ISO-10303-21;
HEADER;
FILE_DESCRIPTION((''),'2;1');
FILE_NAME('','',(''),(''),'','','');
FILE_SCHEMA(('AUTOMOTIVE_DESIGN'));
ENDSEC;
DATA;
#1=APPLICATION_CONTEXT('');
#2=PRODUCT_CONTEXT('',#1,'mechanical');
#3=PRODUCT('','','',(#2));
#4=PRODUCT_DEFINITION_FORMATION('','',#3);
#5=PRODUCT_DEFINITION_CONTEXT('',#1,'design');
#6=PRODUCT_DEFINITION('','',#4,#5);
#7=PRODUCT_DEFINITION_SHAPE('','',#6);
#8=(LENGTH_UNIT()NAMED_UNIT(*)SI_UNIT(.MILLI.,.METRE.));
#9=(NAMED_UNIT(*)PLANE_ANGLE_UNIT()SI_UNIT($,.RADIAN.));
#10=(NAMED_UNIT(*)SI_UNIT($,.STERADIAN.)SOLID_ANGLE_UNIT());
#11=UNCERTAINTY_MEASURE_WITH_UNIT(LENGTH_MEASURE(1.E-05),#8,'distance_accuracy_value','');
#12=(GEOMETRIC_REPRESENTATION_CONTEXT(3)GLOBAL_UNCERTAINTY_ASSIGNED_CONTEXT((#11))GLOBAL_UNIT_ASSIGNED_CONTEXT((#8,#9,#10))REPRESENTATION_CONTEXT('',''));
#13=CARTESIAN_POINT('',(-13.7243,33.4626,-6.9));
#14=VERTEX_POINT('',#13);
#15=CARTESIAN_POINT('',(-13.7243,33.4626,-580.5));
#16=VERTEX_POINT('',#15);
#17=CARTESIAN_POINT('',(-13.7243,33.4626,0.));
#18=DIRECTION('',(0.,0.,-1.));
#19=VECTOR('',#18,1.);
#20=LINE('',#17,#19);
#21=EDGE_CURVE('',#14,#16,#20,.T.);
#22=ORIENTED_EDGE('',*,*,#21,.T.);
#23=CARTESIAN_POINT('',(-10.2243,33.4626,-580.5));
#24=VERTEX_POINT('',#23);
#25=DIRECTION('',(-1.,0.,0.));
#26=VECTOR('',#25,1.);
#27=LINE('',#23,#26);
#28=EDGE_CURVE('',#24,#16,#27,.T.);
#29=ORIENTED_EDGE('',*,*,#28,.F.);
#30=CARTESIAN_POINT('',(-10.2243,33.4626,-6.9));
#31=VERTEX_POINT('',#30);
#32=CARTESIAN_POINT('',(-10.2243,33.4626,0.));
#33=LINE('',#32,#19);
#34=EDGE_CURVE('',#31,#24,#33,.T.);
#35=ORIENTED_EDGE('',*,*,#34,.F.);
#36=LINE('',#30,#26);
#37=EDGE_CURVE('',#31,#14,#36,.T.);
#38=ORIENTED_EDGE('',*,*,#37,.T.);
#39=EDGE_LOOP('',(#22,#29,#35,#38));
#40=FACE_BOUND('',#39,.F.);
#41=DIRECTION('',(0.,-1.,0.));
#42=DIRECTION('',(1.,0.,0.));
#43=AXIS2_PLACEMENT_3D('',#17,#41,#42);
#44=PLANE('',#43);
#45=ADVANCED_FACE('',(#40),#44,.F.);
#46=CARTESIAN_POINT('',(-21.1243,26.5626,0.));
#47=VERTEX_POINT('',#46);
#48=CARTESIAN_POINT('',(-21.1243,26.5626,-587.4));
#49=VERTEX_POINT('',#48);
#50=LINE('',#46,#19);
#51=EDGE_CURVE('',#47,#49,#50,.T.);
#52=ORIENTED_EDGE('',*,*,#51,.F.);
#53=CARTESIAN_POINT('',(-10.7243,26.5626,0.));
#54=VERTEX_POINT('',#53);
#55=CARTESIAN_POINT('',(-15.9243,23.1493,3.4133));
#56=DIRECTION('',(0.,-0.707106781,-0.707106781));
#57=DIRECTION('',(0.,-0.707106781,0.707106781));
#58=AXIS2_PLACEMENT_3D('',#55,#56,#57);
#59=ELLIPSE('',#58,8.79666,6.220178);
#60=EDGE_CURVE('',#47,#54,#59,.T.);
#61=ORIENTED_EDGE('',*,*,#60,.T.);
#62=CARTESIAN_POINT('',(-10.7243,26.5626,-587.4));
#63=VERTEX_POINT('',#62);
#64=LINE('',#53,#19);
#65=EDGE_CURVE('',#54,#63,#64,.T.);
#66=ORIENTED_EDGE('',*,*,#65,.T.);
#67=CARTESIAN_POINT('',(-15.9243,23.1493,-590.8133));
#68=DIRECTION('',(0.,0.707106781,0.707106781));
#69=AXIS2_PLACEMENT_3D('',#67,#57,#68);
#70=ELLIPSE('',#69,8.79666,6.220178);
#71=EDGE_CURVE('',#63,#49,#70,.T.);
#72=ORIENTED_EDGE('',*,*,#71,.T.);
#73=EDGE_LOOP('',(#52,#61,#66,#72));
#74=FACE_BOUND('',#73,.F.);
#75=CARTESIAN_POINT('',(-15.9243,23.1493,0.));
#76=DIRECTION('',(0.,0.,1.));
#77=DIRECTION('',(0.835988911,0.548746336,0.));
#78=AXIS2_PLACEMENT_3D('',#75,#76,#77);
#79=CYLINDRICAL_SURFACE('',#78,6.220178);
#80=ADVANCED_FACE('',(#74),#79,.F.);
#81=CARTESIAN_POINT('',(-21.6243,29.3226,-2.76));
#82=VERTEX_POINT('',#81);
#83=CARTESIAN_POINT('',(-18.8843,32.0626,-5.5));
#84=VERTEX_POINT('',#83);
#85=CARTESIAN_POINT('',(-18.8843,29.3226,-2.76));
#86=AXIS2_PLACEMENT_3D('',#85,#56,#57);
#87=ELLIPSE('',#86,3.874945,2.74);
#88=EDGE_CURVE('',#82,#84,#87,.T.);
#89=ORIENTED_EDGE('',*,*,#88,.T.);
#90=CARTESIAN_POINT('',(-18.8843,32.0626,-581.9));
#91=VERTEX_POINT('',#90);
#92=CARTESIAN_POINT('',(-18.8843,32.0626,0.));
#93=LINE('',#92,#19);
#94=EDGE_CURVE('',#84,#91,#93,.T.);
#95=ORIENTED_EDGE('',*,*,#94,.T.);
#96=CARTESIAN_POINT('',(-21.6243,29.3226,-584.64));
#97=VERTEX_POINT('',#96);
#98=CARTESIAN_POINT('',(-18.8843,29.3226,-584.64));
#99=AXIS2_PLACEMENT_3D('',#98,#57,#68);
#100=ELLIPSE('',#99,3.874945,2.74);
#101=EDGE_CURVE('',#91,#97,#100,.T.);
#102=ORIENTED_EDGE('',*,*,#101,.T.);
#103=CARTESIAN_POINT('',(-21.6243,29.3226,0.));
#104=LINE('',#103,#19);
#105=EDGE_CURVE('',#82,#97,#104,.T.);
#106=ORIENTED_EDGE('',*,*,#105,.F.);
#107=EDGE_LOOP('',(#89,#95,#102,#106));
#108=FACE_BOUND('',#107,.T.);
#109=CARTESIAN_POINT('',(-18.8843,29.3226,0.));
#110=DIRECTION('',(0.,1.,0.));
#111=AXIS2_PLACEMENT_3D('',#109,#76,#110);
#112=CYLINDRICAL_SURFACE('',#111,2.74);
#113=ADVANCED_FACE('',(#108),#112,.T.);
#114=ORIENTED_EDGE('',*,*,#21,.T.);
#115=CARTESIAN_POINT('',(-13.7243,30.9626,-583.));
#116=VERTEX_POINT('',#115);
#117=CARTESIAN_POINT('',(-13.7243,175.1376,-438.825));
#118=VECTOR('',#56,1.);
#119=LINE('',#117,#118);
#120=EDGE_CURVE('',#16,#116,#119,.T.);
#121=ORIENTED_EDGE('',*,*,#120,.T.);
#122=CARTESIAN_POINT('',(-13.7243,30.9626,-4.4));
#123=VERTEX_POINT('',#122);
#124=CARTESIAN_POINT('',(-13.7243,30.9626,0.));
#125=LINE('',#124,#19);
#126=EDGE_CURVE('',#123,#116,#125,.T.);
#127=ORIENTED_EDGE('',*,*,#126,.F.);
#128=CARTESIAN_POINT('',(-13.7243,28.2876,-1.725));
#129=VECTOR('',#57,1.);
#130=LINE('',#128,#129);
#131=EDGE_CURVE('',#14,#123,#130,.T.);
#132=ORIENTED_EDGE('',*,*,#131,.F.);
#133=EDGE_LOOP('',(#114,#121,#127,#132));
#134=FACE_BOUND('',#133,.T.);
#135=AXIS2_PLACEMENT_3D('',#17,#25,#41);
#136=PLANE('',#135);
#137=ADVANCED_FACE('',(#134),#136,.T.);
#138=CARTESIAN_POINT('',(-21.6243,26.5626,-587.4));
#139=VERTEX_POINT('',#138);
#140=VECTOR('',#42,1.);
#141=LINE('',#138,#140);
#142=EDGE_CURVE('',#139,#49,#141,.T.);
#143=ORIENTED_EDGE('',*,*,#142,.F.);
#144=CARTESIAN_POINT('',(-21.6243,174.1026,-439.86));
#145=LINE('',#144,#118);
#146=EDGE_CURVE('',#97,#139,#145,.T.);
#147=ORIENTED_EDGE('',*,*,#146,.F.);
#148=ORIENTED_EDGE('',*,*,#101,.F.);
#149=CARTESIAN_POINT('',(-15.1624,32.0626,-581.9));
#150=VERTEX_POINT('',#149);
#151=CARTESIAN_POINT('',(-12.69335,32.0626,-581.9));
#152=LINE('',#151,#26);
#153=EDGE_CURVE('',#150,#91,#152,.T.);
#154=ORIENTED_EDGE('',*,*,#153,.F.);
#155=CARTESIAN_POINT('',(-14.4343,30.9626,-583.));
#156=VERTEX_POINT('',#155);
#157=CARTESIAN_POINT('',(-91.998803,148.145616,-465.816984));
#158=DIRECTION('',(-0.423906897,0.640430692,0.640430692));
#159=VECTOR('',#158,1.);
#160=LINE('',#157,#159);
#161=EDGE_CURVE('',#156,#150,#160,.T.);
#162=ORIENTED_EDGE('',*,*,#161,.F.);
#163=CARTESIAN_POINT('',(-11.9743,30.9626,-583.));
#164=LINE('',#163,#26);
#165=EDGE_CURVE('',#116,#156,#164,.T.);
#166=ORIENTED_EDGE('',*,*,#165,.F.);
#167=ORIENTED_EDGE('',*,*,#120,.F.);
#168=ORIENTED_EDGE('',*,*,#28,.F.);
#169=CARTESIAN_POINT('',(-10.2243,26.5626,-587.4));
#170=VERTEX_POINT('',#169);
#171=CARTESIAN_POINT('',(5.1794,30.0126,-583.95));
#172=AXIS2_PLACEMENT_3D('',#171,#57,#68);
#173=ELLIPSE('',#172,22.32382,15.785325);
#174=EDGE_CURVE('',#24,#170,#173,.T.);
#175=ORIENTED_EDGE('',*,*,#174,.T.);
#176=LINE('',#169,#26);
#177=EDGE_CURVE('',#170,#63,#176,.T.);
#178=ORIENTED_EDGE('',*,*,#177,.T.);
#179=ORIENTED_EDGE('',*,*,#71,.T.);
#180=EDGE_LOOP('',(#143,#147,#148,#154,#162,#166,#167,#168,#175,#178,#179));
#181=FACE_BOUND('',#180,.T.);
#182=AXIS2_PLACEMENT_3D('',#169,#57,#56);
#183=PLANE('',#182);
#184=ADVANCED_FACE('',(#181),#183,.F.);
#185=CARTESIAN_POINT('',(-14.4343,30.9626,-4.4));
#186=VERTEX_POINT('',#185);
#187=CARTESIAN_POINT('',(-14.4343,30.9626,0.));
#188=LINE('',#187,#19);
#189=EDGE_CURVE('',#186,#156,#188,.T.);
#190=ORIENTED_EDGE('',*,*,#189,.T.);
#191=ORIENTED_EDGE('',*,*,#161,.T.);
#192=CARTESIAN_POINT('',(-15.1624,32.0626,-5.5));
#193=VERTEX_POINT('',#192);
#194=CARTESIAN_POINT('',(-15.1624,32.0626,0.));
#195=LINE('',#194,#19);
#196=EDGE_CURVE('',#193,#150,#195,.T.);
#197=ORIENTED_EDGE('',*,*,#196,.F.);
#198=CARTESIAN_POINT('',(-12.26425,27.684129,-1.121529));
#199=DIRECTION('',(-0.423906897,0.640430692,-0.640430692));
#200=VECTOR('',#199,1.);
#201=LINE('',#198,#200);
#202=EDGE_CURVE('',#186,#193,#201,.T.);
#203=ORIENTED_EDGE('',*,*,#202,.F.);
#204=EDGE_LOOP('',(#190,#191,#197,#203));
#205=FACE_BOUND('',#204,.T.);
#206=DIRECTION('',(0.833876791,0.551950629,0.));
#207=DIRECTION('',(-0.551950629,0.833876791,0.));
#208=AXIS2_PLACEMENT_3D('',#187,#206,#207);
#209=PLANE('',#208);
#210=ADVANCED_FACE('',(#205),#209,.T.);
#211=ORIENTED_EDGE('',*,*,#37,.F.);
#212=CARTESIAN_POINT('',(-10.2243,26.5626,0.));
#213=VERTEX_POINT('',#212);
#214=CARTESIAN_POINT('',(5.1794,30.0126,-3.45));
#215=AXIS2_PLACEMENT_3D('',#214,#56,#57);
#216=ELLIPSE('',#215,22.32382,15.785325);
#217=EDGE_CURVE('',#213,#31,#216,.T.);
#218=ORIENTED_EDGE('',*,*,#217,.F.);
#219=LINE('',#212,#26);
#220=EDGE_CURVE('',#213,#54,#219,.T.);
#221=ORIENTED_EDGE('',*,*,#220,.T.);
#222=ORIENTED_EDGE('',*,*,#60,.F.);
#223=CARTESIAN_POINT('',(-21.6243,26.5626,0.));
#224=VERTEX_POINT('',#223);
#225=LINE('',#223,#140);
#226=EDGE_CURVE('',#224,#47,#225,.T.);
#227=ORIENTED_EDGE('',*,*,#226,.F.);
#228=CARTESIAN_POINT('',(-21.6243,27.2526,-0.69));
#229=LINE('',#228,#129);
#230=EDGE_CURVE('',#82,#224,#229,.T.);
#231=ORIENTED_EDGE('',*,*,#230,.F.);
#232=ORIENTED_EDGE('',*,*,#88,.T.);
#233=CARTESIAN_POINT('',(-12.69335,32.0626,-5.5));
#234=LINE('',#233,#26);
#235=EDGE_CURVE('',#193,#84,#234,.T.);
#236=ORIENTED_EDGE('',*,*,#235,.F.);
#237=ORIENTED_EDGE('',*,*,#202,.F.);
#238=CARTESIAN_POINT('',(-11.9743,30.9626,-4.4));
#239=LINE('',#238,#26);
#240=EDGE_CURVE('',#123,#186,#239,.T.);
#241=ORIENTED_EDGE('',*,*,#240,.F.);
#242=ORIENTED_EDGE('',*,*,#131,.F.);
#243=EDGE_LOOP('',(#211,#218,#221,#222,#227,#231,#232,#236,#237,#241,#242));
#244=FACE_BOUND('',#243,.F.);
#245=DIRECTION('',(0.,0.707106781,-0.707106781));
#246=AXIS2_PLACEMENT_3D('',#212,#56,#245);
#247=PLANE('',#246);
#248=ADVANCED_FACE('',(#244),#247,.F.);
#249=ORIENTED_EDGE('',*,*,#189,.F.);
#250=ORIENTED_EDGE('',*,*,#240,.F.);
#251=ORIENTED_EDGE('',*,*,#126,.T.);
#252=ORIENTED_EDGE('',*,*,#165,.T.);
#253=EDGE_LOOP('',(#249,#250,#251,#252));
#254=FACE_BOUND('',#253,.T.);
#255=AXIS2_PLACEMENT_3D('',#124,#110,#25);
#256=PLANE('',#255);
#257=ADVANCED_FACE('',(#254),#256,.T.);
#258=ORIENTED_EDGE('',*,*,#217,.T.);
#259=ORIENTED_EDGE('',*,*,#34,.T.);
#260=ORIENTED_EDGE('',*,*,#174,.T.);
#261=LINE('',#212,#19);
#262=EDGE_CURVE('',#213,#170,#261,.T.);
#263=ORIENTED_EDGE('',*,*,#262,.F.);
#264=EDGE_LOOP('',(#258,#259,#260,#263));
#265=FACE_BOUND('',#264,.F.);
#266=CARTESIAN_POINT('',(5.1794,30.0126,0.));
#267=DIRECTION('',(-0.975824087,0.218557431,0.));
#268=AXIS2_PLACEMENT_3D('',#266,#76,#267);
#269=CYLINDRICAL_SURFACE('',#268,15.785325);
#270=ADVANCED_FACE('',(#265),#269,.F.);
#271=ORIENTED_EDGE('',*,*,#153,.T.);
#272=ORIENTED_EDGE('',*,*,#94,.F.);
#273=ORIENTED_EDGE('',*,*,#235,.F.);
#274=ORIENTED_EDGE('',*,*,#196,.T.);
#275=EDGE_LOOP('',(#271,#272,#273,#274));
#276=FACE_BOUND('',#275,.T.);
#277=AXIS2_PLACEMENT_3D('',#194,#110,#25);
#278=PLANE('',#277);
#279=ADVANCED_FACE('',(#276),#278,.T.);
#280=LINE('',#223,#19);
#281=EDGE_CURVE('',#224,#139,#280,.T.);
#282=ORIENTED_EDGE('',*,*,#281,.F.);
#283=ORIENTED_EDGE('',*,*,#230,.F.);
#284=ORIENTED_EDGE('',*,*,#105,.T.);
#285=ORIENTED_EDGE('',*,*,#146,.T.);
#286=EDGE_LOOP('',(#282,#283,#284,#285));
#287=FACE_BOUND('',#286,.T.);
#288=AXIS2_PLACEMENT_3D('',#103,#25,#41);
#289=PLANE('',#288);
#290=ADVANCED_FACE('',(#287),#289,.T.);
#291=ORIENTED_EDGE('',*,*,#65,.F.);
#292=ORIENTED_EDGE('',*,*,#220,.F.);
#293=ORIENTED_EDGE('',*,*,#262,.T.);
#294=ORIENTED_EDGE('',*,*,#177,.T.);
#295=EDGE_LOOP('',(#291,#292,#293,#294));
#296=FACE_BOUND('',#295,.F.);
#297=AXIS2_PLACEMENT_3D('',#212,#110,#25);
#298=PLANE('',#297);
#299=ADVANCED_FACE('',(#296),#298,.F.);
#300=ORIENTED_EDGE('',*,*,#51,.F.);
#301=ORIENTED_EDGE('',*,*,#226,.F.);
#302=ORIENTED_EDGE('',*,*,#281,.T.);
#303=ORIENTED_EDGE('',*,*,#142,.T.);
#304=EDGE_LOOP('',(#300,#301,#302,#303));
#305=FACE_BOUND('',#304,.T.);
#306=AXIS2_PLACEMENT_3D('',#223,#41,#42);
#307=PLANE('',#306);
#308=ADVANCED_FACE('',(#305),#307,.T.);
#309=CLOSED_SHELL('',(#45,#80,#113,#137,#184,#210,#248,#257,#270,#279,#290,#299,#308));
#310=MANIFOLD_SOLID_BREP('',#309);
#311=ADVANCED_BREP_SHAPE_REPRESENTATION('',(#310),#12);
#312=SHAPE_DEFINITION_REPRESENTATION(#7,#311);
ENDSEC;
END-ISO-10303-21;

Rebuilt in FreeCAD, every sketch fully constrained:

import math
import FreeCAD as App
import Part
import Sketcher
from FreeCAD import Vector
Q = App.Units.Quantity


def add_polygon(sketch, points):
    """Adds a closed chain of lines whose ends are joined by coincident constraints."""
    first, n = sketch.GeometryCount, len(points)
    for a, b in zip(points, points[1:] + points[:1]):
        sketch.addGeometry(Part.LineSegment(App.Vector(*a, 0), App.Vector(*b, 0)), False)
    for i in range(n):
        sketch.addConstraint(Sketcher.Constraint("Coincident", first + i, 2, first + (i + 1) % n, 1))

doc = App.newDocument("Part")
params = doc.addObject("Spreadsheet::Sheet", "Params")
for row, (alias, value) in enumerate([
    ("sketch1_radius", "2.74 mm"),
    ("sketch1_width", "0.5 mm"),
    ("sketch1_width2", "3.5 mm"),
    ("sketch1_height", "2.5 mm"),
    ("sketch1_width3", "0.71 mm"),
    ("pad1_length", "587.4 mm"),
    ("sketch2_width", "6.9 mm"),
], start=1):
    params.set(f"A{row}", alias)
    params.set(f"B{row}", "=" + value)
    params.setAlias(f"B{row}", alias)

body = doc.addObject("PartDesign::Body", "Body")

# Sketch on XY plane
sketch1 = body.newObject("Sketcher::SketchObject", "Sketch")
sketch1.AttachmentSupport = (doc.getObject("XY_Plane"), [""])
sketch1.MapMode = "FlatFace"
sketch1.addGeometry([
    Part.LineSegment(Vector(-14.4343, 30.9626, 0), Vector(-15.1624, 32.0626, 0)),  # 0
    Part.LineSegment(Vector(-15.1624, 32.0626, 0), Vector(-18.8843, 32.0626, 0)),  # 1
    Part.ArcOfCircle(Part.Circle(Vector(-18.8843, 29.3226, 0), Vector(0, 0, 1), 2.74), math.radians(90), math.radians(180)),  # 2
    Part.LineSegment(Vector(-21.6243, 29.3226, 0), Vector(-21.6243, 26.5626, 0)),  # 3
    Part.LineSegment(Vector(-21.6243, 26.5626, 0), Vector(-21.1243, 26.5626, 0)),  # 4
    Part.ArcOfCircle(Part.Circle(Vector(-15.9243, 23.1493, 0), Vector(0, 0, 1), 6.220178), math.radians(33.281049), math.radians(146.718951)),  # 5
    Part.LineSegment(Vector(-10.7243, 26.5626, 0), Vector(-10.2243, 26.5626, 0)),  # 6
    Part.ArcOfCircle(Part.Circle(Vector(5.1794, 30.0126, 0), Vector(0, 0, 1), 15.785325), math.radians(167.375682), math.radians(192.624318)),  # 7
    Part.LineSegment(Vector(-10.2243, 33.4626, 0), Vector(-13.7243, 33.4626, 0)),  # 8
    Part.LineSegment(Vector(-13.7243, 33.4626, 0), Vector(-13.7243, 30.9626, 0)),  # 9
    Part.LineSegment(Vector(-13.7243, 30.9626, 0), Vector(-14.4343, 30.9626, 0)),  # 10
], False)
sketch1.addConstraint([
    Sketcher.Constraint("Coincident", 0, 2, 1, 1),
    Sketcher.Constraint("Tangent", 1, 2, 2, 1),
    Sketcher.Constraint("Tangent", 2, 2, 3, 1),
    Sketcher.Constraint("Coincident", 3, 2, 4, 1),
    Sketcher.Constraint("Coincident", 4, 2, 5, 2),
    Sketcher.Constraint("Coincident", 5, 1, 6, 1),
    Sketcher.Constraint("Coincident", 6, 2, 7, 2),
    Sketcher.Constraint("Coincident", 7, 1, 8, 1),
    Sketcher.Constraint("Coincident", 8, 2, 9, 1),
    Sketcher.Constraint("Coincident", 9, 2, 10, 1),
    Sketcher.Constraint("Coincident", 10, 2, 0, 1),
    Sketcher.Constraint("Horizontal", 1),
    Sketcher.Constraint("Vertical", 3),
    Sketcher.Constraint("Horizontal", 4),
    Sketcher.Constraint("Horizontal", 6),
    Sketcher.Constraint("Horizontal", 8),
    Sketcher.Constraint("Vertical", 9),
    Sketcher.Constraint("Horizontal", 10),
    Sketcher.Constraint("Horizontal", 4, 2, 5, 1),
    Sketcher.Constraint("Vertical", 6, 2, 7, 1),
    Sketcher.Constraint("Equal", 4, 6),
    Sketcher.Constraint("Radius", 2, Q("2.74 mm")),
    Sketcher.Constraint("DistanceX", 4, 1, 4, 2, Q("0.5 mm")),
    Sketcher.Constraint("DistanceX", 8, 2, 8, 1, Q("3.5 mm")),
    Sketcher.Constraint("DistanceY", 9, 2, 9, 1, Q("2.5 mm")),
    Sketcher.Constraint("DistanceX", 10, 2, 10, 1, Q("0.71 mm")),
    Sketcher.Constraint("DistanceY", 3, 2, 3, 1, Q("2.76 mm")),
    Sketcher.Constraint("Angle", 0, Q("123.501 deg")),
    Sketcher.Constraint("Radius", 5, Q("6.2202 mm")),
    Sketcher.Constraint("Radius", 7, Q("15.7853 mm")),
    Sketcher.Constraint("DistanceX", 2, 2, 5, 3, Q("5.7 mm")),
    Sketcher.Constraint("DistanceY", 0, 2, 7, 1, Q("1.4 mm")),
    Sketcher.Constraint("DistanceX", 2, 3, -1, 1, Q("18.8843 mm")),
    Sketcher.Constraint("DistanceY", -1, 1, 2, 3, Q("29.3226 mm")),
])
sketch1.setExpression("Constraints[21]", "Params.sketch1_radius")
sketch1.setExpression("Constraints[22]", "Params.sketch1_width")
sketch1.setExpression("Constraints[23]", "Params.sketch1_width2")
sketch1.setExpression("Constraints[24]", "Params.sketch1_height")
sketch1.setExpression("Constraints[25]", "Params.sketch1_width3")
pad1 = body.newObject("PartDesign::Pad", "Pad")
pad1.Profile = sketch1
pad1.setExpression("Length", "Params.pad1_length")
pad1.Reversed = True

# Sketch on YZ plane
sketch2 = body.newObject("Sketcher::SketchObject", "Sketch001")
sketch2.AttachmentSupport = (doc.getObject("YZ_Plane"), [""])
sketch2.MapMode = "FlatFace"
sketch2.AttachmentOffset = App.Placement(Vector(0, 0, -10.2243), App.Rotation())
add_polygon(sketch2, [(26.5626, 0), (33.4626, 0), (33.4626, -6.9)])  # lines 0-2
sketch2.addConstraint([
    Sketcher.Constraint("Horizontal", 0),
    Sketcher.Constraint("Vertical", 1),
    Sketcher.Constraint("PointOnObject", 0, 2, -1),
    Sketcher.Constraint("Equal", 0, 1),
    Sketcher.Constraint("DistanceX", 0, 1, 0, 2, Q("6.9 mm")),
    Sketcher.Constraint("DistanceX", -1, 1, 0, 2, Q("33.4626 mm")),
])
sketch2.setExpression("Constraints[7]", "Params.sketch2_width")
pocket1 = body.newObject("PartDesign::Pocket", "Pocket")
pocket1.Profile = sketch2
pocket1.Type = "ThroughAll"
doc.recompute()

datumplane = body.newObject("PartDesign::Plane", "DatumPlane")
datumplane.AttachmentSupport = (doc.getObject("XY_Plane"), [""])
datumplane.MapMode = "FlatFace"
datumplane.AttachmentOffset = App.Placement(Vector(0, 0, -293.7), App.Rotation())
mirrored = body.newObject("PartDesign::Mirrored", "Mirrored")
mirrored.Originals = [pocket1]
mirrored.MirrorPlane = (datumplane, [""])
body.Tip = mirrored

doc.recompute()
